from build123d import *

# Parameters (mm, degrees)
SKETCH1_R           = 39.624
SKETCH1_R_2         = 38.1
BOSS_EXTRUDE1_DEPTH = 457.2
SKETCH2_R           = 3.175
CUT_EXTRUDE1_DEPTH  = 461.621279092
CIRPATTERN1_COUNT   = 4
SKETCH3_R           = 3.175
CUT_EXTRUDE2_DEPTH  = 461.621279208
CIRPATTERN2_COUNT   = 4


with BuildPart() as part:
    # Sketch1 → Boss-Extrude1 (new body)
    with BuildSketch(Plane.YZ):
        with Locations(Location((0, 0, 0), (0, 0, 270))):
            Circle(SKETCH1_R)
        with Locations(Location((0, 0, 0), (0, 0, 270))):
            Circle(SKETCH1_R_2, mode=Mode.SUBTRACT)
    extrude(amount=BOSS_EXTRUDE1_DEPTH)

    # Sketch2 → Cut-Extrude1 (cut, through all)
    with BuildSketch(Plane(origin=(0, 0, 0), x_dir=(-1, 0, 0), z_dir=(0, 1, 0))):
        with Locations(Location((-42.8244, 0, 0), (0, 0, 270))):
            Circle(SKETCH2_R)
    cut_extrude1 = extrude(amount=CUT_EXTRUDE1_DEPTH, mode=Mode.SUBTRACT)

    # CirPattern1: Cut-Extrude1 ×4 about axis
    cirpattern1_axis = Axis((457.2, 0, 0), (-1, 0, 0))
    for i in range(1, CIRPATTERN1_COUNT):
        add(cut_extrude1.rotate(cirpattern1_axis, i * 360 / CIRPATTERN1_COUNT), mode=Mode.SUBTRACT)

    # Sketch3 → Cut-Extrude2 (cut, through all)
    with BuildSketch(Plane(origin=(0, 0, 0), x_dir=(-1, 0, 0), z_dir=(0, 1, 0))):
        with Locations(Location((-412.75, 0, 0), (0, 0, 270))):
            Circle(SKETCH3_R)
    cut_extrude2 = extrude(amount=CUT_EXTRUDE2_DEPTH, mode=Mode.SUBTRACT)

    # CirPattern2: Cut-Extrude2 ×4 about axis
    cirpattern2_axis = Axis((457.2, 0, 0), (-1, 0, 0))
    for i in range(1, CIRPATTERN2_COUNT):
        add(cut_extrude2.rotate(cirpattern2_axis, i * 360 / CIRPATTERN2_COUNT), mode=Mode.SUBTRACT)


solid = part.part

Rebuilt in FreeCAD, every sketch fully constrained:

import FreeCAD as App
import Part
import Sketcher
Q = App.Units.Quantity

doc = App.newDocument("Part")
body = doc.addObject("PartDesign::Body", "Body")

# Sketch on YZ plane
sketch1 = doc.addObject("Sketcher::SketchObject", "Sketch")
body.addObject(sketch1)
sketch1.AttachmentSupport = (doc.YZ_Plane, [""])
sketch1.MapMode = "FlatFace"
sketch1.addGeometry([
    Part.Circle(App.Vector(0, 0, 0), App.Vector(0, 0, 1), 40),
    Part.Circle(App.Vector(0, 0, 0), App.Vector(0, 0, 1), 38),
], False)
sketch1.addConstraint([
    Sketcher.Constraint("Coincident", 0, 3, -1, 1),
    Sketcher.Constraint("Coincident", 1, 3, -1, 1),
    Sketcher.Constraint("Diameter", 1, Q("3 in")),
    Sketcher.Constraint("Diameter", 0, Q("3.12 in")),
])
pad1 = doc.addObject("PartDesign::Pad", "Pad")
body.addObject(pad1)
pad1.Profile = sketch1
pad1.Length = Q("18 in")

# Sketch on XZ plane
sketch2 = doc.addObject("Sketcher::SketchObject", "Sketch001")
body.addObject(sketch2)
sketch2.AttachmentSupport = (doc.XZ_Plane, [""])
sketch2.MapMode = "FlatFace"
sketch2.addGeometry(Part.Circle(App.Vector(42.8, 0, 0), App.Vector(0, 0, 1), 3.2), False)
sketch2.addConstraint([
    Sketcher.Constraint("PointOnObject", 0, 3, -1),
    Sketcher.Constraint("Diameter", 0, Q("0.25 in")),
    Sketcher.Constraint("DistanceX", -1, 1, 0, 3, Q("1.686 in")),
])
pocket1 = doc.addObject("PartDesign::Pocket", "Pocket")
body.addObject(pocket1)
pocket1.Profile = sketch2
pocket1.Type = "ThroughAll"
doc.recompute()

polarpattern = doc.addObject("PartDesign::PolarPattern", "PolarPattern")
body.addObject(polarpattern)
polarpattern.Originals = [pocket1]
polarpattern.Axis = (doc.X_Axis, [""])
polarpattern.Angle = 360
polarpattern.Occurrences = 4
body.Tip = polarpattern

# Sketch on XZ plane
sketch3 = doc.addObject("Sketcher::SketchObject", "Sketch002")
body.addObject(sketch3)
sketch3.AttachmentSupport = (doc.XZ_Plane, [""])
sketch3.MapMode = "FlatFace"
sketch3.addGeometry(Part.Circle(App.Vector(412.8, 0, 0), App.Vector(0, 0, 1), 3.2), False)
sketch3.addConstraint([
    Sketcher.Constraint("PointOnObject", 0, 3, -1),
    Sketcher.Constraint("Diameter", 0, Q("0.25 in")),
    Sketcher.Constraint("DistanceX", -1, 1, 0, 3, Q("16.25 in")),
])
pocket2 = doc.addObject("PartDesign::Pocket", "Pocket001")
body.addObject(pocket2)
pocket2.Profile = sketch3
pocket2.Type = "ThroughAll"
doc.recompute()

polarpattern2 = doc.addObject("PartDesign::PolarPattern", "PolarPattern001")
body.addObject(polarpattern2)
polarpattern2.Originals = [pocket2]
polarpattern2.Axis = (doc.X_Axis, [""])
polarpattern2.Angle = 360
polarpattern2.Occurrences = 4
body.Tip = polarpattern2

doc.recompute()
